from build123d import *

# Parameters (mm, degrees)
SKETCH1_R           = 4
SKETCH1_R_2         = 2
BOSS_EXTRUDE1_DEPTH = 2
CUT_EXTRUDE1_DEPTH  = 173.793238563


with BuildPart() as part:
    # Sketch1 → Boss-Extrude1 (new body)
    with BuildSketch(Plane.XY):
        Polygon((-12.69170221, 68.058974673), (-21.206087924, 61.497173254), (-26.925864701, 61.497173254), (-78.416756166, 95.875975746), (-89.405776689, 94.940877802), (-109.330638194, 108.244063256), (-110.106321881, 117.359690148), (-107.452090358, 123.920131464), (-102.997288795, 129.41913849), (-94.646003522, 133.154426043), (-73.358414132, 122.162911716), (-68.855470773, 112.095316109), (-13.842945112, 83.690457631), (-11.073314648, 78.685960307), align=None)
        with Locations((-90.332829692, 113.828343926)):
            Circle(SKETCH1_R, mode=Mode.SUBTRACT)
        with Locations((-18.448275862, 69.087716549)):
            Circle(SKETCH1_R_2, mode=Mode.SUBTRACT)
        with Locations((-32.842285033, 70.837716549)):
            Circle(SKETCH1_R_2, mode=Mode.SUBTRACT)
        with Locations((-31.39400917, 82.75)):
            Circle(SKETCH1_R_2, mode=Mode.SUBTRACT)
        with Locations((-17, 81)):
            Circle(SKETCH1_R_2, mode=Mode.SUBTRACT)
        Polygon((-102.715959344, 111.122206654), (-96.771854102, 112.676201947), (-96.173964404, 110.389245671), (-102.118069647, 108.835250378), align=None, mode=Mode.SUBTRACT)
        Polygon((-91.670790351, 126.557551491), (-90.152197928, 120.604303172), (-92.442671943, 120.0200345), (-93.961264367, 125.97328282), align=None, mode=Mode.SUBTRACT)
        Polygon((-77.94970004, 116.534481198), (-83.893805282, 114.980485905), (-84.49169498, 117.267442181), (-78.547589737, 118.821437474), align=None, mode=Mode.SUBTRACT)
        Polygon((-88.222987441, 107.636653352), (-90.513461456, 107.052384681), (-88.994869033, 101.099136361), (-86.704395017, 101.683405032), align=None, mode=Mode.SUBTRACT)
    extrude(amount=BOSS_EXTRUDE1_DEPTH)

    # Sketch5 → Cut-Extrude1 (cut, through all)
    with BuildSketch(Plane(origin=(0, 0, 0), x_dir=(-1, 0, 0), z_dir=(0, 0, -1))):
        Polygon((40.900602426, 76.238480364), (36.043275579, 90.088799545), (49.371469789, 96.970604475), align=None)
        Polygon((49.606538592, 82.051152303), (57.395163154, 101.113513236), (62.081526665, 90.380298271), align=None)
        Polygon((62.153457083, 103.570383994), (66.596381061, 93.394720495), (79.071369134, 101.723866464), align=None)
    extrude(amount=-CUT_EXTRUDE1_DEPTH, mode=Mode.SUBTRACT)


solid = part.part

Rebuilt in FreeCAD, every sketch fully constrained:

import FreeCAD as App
import Part
import Sketcher
from FreeCAD import Vector
Q = App.Units.Quantity


def add_polygon(sketch, points):
    """Adds a closed chain of lines whose ends are joined by coincident constraints."""
    first, n = sketch.GeometryCount, len(points)
    for a, b in zip(points, points[1:] + points[:1]):
        sketch.addGeometry(Part.LineSegment(App.Vector(*a, 0), App.Vector(*b, 0)), False)
    for i in range(n):
        sketch.addConstraint(Sketcher.Constraint("Coincident", first + i, 2, first + (i + 1) % n, 1))

doc = App.newDocument("Part")
params = doc.addObject("Spreadsheet::Sheet", "Params")
for row, (alias, value) in enumerate([
    ("sketch1_diameter", "4 mm"),
    ("sketch1_diameter2", "4 mm"),
    ("sketch1_diameter3", "4 mm"),
    ("sketch1_diameter4", "4 mm"),
    ("sketch1_diameter5", "8 mm"),
    ("pad1_length", "2 mm"),
    ("sketch2_length", "15 mm"),
], start=1):
    params.set(f"A{row}", alias)
    params.set(f"B{row}", "=" + value)
    params.setAlias(f"B{row}", alias)

body = doc.addObject("PartDesign::Body", "Body")

sketch1 = body.newObject("Sketcher::SketchObject", "Sketch")
sketch1.AttachmentSupport = (doc.getObject("XY_Plane"), [""])
sketch1.MapMode = "FlatFace"
add_polygon(sketch1, [(-21.206088, 61.497173), (-12.691702, 68.058975), (-11.073315, 78.68596), (-13.842945, 83.690458), (-68.855471, 112.095316), (-73.358414, 122.162912), (-94.646004, 133.154426), (-102.997289, 129.419138), (-107.45209, 123.920131), (-110.106322, 117.35969), (-109.330638, 108.244063), (-89.405777, 94.940878), (-78.416756, 95.875976), (-26.925865, 61.497173)])
sketch1.addGeometry(Part.Circle(Vector(-18.448276, 69.087717, 0), Vector(0, 0, 1), 2), False)
sketch1.addGeometry(Part.Circle(Vector(-32.842285, 70.837717, 0), Vector(0, 0, 1), 2), False)
sketch1.addGeometry(Part.Circle(Vector(-17, 81, 0), Vector(0, 0, 1), 2), False)
sketch1.addGeometry(Part.Circle(Vector(-31.394009, 82.75, 0), Vector(0, 0, 1), 2), False)
add_polygon(sketch1, [(-88.222987, 107.636653), (-86.704395, 101.683405), (-88.994869, 101.099136), (-90.513461, 107.052385)])
add_polygon(sketch1, [(-102.715959, 111.122207), (-96.771854, 112.676202), (-96.173964, 110.389246), (-102.11807, 108.83525)])
sketch1.addGeometry(Part.Circle(Vector(-90.33283, 113.828344, 0), Vector(0, 0, 1), 4), False)
add_polygon(sketch1, [(-77.9497, 116.534481), (-83.893805, 114.980486), (-84.491695, 117.267442), (-78.54759, 118.821437)])
add_polygon(sketch1, [(-91.67079, 126.557551), (-90.152198, 120.604303), (-92.442672, 120.020034), (-93.961264, 125.973283)])
sketch1.addConstraint([
    Sketcher.Constraint("Horizontal", 13),
    Sketcher.Constraint("Diameter", 14, Q("4 mm")),
    Sketcher.Constraint("Diameter", 15, Q("4 mm")),
    Sketcher.Constraint("Diameter", 16, Q("4 mm")),
    Sketcher.Constraint("Diameter", 17, Q("4 mm")),
    Sketcher.Constraint("Diameter", 26, Q("8 mm")),
    Sketcher.Constraint("DistanceX", 16, 3, -1, 1, Q("17 mm")),
    Sketcher.Constraint("DistanceY", -1, 1, 16, 3, Q("81 mm")),
    Sketcher.Constraint("DistanceY", -1, 1, 17, 3, Q("82.75 mm")),
    Sketcher.Constraint("DistanceY", 14, 3, 15, 3, Q("1.75 mm")),
    Sketcher.Constraint("DistanceY", -1, 1, 22, 2, Q("112.676202 mm")),
    Sketcher.Constraint("DistanceX", 30, 2, -1, 1, Q("77.9497 mm")),
    Sketcher.Constraint("DistanceY", 15, 3, 3, 2, Q("41.2576 mm")),
    Sketcher.Constraint("DistanceX", 7, 2, 6, 2, Q("4.454802 mm")),
    Sketcher.Constraint("DistanceY", 12, 2, 0, 2, Q("6.561801 mm")),
    Sketcher.Constraint("DistanceY", 23, 2, 26, 3, Q("3.439098 mm")),
    Sketcher.Constraint("DistanceY", 20, 2, 27, 2, Q("7.928101 mm")),
    Sketcher.Constraint("DistanceY", 26, 3, 28, 2, Q("3.439098 mm")),
    Sketcher.Constraint("DistanceY", 22, 2, 31, 2, Q("7.928101 mm")),
    Sketcher.Constraint("DistanceX", 6, 2, 34, 2, Q("11.326498 mm")),
    Sketcher.Constraint("Distance", 0, Q("10.749512 mm")),
    Sketcher.Constraint("Distance", 1, Q("10.749512 mm")),
    Sketcher.Constraint("Distance", 6, Q("9.14857 mm")),
    Sketcher.Constraint("Distance", 7, Q("7.077029 mm")),
    Sketcher.Constraint("Distance", 8, Q("7.077029 mm")),
    Sketcher.Constraint("Distance", 9, Q("9.14857 mm")),
    Sketcher.Constraint("Distance", 19, Q("2.363819 mm")),
    Sketcher.Constraint("Distance", 21, Q("2.363819 mm")),
    Sketcher.Constraint("Distance", 23, Q("2.363819 mm")),
    Sketcher.Constraint("Distance", 25, Q("2.363819 mm")),
    Sketcher.Constraint("Distance", 28, Q("2.363819 mm")),
    Sketcher.Constraint("Distance", 30, Q("2.363819 mm")),
    Sketcher.Constraint("Distance", 32, Q("2.363819 mm")),
    Sketcher.Constraint("Distance", 34, Q("2.363819 mm")),
    Sketcher.Constraint("DistanceX", 13, 1, 13, 2, Q("5.719777 mm")),
    Sketcher.Constraint("DistanceX", 17, 3, -1, 1, Q("31.394009 mm")),
    Sketcher.Constraint("DistanceX", 26, 3, -1, 1, Q("90.33283 mm")),
    Sketcher.Constraint("DistanceY", -1, 1, 1, 2, Q("78.68596 mm")),
    Sketcher.Constraint("DistanceX", 3, 2, -1, 1, Q("68.855471 mm")),
    Sketcher.Constraint("DistanceY", -1, 1, 4, 2, Q("122.162912 mm")),
    Sketcher.Constraint("DistanceX", 6, 2, -1, 1, Q("102.997289 mm")),
    Sketcher.Constraint("DistanceY", -1, 1, 6, 2, Q("129.419138 mm")),
    Sketcher.Constraint("DistanceX", 8, 2, -1, 1, Q("110.106322 mm")),
    Sketcher.Constraint("DistanceX", 9, 2, -1, 1, Q("109.330638 mm")),
    Sketcher.Constraint("DistanceX", 19, 2, -1, 1, Q("88.994869 mm")),
    Sketcher.Constraint("DistanceX", 20, 2, -1, 1, Q("90.513461 mm")),
    Sketcher.Constraint("DistanceX", 24, 2, -1, 1, Q("102.11807 mm")),
    Sketcher.Constraint("DistanceY", -1, 1, 24, 2, Q("108.83525 mm")),
    Sketcher.Constraint("DistanceX", 25, 2, -1, 1, Q("102.715959 mm")),
    Sketcher.Constraint("DistanceX", 29, 2, -1, 1, Q("78.54759 mm")),
    Sketcher.Constraint("DistanceY", -1, 1, 30, 2, Q("116.534481 mm")),
    Sketcher.Constraint("DistanceX", 32, 2, -1, 1, Q("92.442672 mm")),
    Sketcher.Constraint("DistanceY", -1, 1, 34, 2, Q("126.557551 mm")),
    Sketcher.Constraint("DistanceX", 15, 3, 14, 3, Q("14.394009 mm")),
    Sketcher.Constraint("DistanceY", 0, 2, 14, 3, Q("1.028742 mm")),
    Sketcher.Constraint("DistanceY", 0, 2, 26, 3, Q("45.769369 mm")),
    Sketcher.Constraint("DistanceX", 14, 3, 1, 2, Q("7.374961 mm")),
    Sketcher.Constraint("DistanceX", 2, 2, 1, 2, Q("2.76963 mm")),
    Sketcher.Constraint("DistanceY", 14, 3, 2, 2, Q("14.602741 mm")),
    Sketcher.Constraint("DistanceX", 4, 2, 15, 3, Q("40.516129 mm")),
    Sketcher.Constraint("DistanceX", 5, 2, 4, 2, Q("21.287589 mm")),
    Sketcher.Constraint("DistanceY", 3, 2, 5, 2, Q("21.05911 mm")),
    Sketcher.Constraint("DistanceX", 8, 2, 5, 2, Q("15.460318 mm")),
    Sketcher.Constraint("DistanceX", 9, 2, 10, 2, Q("19.924862 mm")),
    Sketcher.Constraint("DistanceY", 10, 2, 3, 2, Q("17.154438 mm")),
    Sketcher.Constraint("DistanceX", 10, 2, 11, 2, Q("10.989021 mm")),
    Sketcher.Constraint("DistanceY", 11, 2, 3, 2, Q("16.21934 mm")),
    Sketcher.Constraint("DistanceX", 10, 2, 18, 2, Q("2.701382 mm")),
    Sketcher.Constraint("DistanceY", 11, 2, 18, 2, Q("5.807429 mm")),
    Sketcher.Constraint("DistanceY", 19, 2, 20, 2, Q("5.953248 mm")),
    Sketcher.Constraint("DistanceY", 20, 2, 21, 2, Q("0.584269 mm")),
    Sketcher.Constraint("DistanceX", 27, 2, 4, 2, Q("10.535391 mm")),
    Sketcher.Constraint("DistanceX", 22, 2, 27, 2, Q("12.878049 mm")),
    Sketcher.Constraint("DistanceX", 26, 3, 31, 2, Q("0.180632 mm")),
    Sketcher.Constraint("DistanceY", 32, 2, 33, 2, Q("5.953248 mm")),
])
sketch1.setExpression("Constraints[31]", "Params.sketch1_diameter")
sketch1.setExpression("Constraints[32]", "Params.sketch1_diameter2")
sketch1.setExpression("Constraints[33]", "Params.sketch1_diameter3")
sketch1.setExpression("Constraints[34]", "Params.sketch1_diameter4")
sketch1.setExpression("Constraints[35]", "Params.sketch1_diameter5")
pad1 = body.newObject("PartDesign::Pad", "Pad")
pad1.Profile = sketch1
pad1.setExpression("Length", "Params.pad1_length")

sketch2 = body.newObject("Sketcher::SketchObject", "Sketch001")
sketch2.AttachmentSupport = (doc.getObject("XY_Plane"), [""])
sketch2.MapMode = "FlatFace"
add_polygon(sketch2, [(-36.043276, 90.0888), (-40.900602, 76.23848), (-49.37147, 96.970604)])
add_polygon(sketch2, [(-57.395163, 101.113513), (-49.606539, 82.051152), (-62.081527, 90.380298)])
add_polygon(sketch2, [(-62.153457, 103.570384), (-66.596381, 93.39472), (-79.071369, 101.723866)])
sketch2.addConstraint([
    Sketcher.Constraint("Parallel", 1, 3),
    Sketcher.Constraint("Parallel", 5, 6),
    Sketcher.Constraint("Parallel", 4, 7),
    Sketcher.Constraint("Equal", 2, 4),
    Sketcher.Constraint("Equal", 4, 7),
    Sketcher.Constraint("Distance", 2, Q("15 mm")),
    Sketcher.Constraint("Distance", 5, Q("11.7117 mm")),
    Sketcher.Constraint("DistanceY", -1, 1, 2, 2, Q("90.0888 mm")),
    Sketcher.Constraint("DistanceY", -1, 1, 4, 2, Q("90.380298 mm")),
    Sketcher.Constraint("DistanceX", 7, 2, 1, 2, Q("29.699899 mm")),
    Sketcher.Constraint("Distance", 3, Q("20.592141 mm")),
    Sketcher.Constraint("Distance", 6, Q("11.103319 mm")),
    Sketcher.Constraint("DistanceY", -1, 1, 0, 2, Q("76.23848 mm")),
    Sketcher.Constraint("DistanceX", 1, 2, -1, 1, Q("49.37147 mm")),
    Sketcher.Constraint("DistanceX", 3, 2, -1, 1, Q("49.606539 mm")),
    Sketcher.Constraint("DistanceX", 6, 2, -1, 1, Q("66.596381 mm")),
    Sketcher.Constraint("DistanceY", -1, 1, 6, 2, Q("93.39472 mm")),
    Sketcher.Constraint("DistanceX", 4, 2, 2, 2, Q("26.038251 mm")),
])
sketch2.setExpression("Constraints[14]", "Params.sketch2_length")
pocket1 = body.newObject("PartDesign::Pocket", "Pocket")
pocket1.Profile = sketch2
pocket1.Type = "ThroughAll"
pocket1.Reversed = True

doc.recompute()
